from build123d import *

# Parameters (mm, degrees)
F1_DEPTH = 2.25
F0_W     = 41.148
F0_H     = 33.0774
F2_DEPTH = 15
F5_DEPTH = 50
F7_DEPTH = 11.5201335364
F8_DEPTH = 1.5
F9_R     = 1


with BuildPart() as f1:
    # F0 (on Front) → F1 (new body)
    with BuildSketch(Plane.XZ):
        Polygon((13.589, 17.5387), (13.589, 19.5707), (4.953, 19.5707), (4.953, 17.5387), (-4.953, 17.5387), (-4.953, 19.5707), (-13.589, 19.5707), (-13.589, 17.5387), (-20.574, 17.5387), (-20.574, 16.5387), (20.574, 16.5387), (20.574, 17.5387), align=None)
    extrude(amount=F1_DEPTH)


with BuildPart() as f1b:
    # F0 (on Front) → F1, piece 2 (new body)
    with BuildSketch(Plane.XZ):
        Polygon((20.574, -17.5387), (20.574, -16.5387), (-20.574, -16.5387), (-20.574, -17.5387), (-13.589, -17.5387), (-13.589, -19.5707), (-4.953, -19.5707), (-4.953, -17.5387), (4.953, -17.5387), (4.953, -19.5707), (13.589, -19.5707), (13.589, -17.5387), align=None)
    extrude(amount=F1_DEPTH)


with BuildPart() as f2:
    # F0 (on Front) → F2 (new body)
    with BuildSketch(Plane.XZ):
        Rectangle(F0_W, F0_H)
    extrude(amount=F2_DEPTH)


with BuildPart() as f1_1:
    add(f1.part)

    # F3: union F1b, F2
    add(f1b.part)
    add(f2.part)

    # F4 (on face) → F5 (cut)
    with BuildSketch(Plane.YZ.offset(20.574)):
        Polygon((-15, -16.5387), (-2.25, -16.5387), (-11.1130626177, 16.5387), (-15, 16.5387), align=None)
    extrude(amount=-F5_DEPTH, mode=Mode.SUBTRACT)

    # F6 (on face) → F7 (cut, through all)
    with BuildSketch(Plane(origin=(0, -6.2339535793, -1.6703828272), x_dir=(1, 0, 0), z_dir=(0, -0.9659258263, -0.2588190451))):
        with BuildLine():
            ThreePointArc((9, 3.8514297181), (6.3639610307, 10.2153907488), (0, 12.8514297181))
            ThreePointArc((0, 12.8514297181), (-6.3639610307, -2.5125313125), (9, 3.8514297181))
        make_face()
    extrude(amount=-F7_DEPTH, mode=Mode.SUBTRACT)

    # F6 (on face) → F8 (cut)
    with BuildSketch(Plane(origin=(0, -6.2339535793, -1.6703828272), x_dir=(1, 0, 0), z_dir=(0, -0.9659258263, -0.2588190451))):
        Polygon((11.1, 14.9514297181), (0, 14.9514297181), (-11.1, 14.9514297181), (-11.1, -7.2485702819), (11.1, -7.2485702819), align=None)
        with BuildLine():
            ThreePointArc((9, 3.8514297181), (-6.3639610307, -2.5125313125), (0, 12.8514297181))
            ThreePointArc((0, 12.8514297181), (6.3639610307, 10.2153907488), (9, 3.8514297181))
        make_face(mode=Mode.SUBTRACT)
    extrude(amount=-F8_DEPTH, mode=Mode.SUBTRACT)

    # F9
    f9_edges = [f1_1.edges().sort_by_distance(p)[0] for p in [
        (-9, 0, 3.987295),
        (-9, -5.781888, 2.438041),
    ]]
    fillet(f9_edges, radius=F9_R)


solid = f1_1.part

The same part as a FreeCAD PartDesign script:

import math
import FreeCAD as App
import Part
import Sketcher
from FreeCAD import Vector
Q = App.Units.Quantity


def edges_at(feature, points):
    """Names of the edges that pass closest to the given points."""
    edges = feature.Shape.Edges
    near = lambda p: min(range(len(edges)), key=lambda i: edges[i].distToShape(Part.Vertex(*p))[0])
    return sorted({f"Edge{near(p) + 1}" for p in points})

doc = App.newDocument("Part")
params = doc.addObject("Spreadsheet::Sheet", "Params")
for row, (alias, value) in enumerate([
    ("sketch1_height", "1 mm"),
    ("pad1_length", "2.25 mm"),
    ("sketch2_height", "1 mm"),
    ("pad2_length", "2.25 mm"),
    ("pad3_length", "15 mm"),
    ("sketch4_width", "12.75 mm"),
    ("pocket1_length", "50 mm"),
    ("sketch5_radius", "9 mm"),
    ("sketch6_radius", "9 mm"),
    ("sketch6_width", "22.2 mm"),
    ("pocket3_length", "1.5 mm"),
    ("fillet_radius", "1 mm"),
], start=1):
    params.set(f"A{row}", alias)
    params.set(f"B{row}", "=" + value)
    params.setAlias(f"B{row}", alias)

body = doc.addObject("PartDesign::Body", "Body")

# Sketch on XZ plane
sketch1 = doc.addObject("Sketcher::SketchObject", "Sketch")
body.addObject(sketch1)
sketch1.AttachmentSupport = (doc.XZ_Plane, [""])
sketch1.MapMode = "FlatFace"
sketch1.addGeometry([
    Part.LineSegment(Vector(13.589, 17.5387, 0), Vector(13.589, 19.5707, 0)),  # 0
    Part.LineSegment(Vector(13.589, 19.5707, 0), Vector(4.953, 19.5707, 0)),  # 1
    Part.LineSegment(Vector(4.953, 19.5707, 0), Vector(4.953, 17.5387, 0)),  # 2
    Part.LineSegment(Vector(4.953, 17.5387, 0), Vector(-4.953, 17.5387, 0)),  # 3
    Part.LineSegment(Vector(-4.953, 17.5387, 0), Vector(-4.953, 19.5707, 0)),  # 4
    Part.LineSegment(Vector(-4.953, 19.5707, 0), Vector(-13.589, 19.5707, 0)),  # 5
    Part.LineSegment(Vector(-13.589, 19.5707, 0), Vector(-13.589, 17.5387, 0)),  # 6
    Part.LineSegment(Vector(-13.589, 17.5387, 0), Vector(-20.574, 17.5387, 0)),  # 7
    Part.LineSegment(Vector(-20.574, 17.5387, 0), Vector(-20.574, 16.5387, 0)),  # 8
    Part.LineSegment(Vector(-20.574, 16.5387, 0), Vector(20.574, 16.5387, 0)),  # 9
    Part.LineSegment(Vector(20.574, 16.5387, 0), Vector(20.574, 17.5387, 0)),  # 10
    Part.LineSegment(Vector(20.574, 17.5387, 0), Vector(13.589, 17.5387, 0)),  # 11
], False)
sketch1.addConstraint([
    Sketcher.Constraint("Coincident", 0, 2, 1, 1),
    Sketcher.Constraint("Coincident", 1, 2, 2, 1),
    Sketcher.Constraint("Coincident", 2, 2, 3, 1),
    Sketcher.Constraint("Coincident", 3, 2, 4, 1),
    Sketcher.Constraint("Coincident", 4, 2, 5, 1),
    Sketcher.Constraint("Coincident", 5, 2, 6, 1),
    Sketcher.Constraint("Coincident", 6, 2, 7, 1),
    Sketcher.Constraint("Coincident", 7, 2, 8, 1),
    Sketcher.Constraint("Coincident", 8, 2, 9, 1),
    Sketcher.Constraint("Coincident", 9, 2, 10, 1),
    Sketcher.Constraint("Coincident", 10, 2, 11, 1),
    Sketcher.Constraint("Coincident", 11, 2, 0, 1),
    Sketcher.Constraint("Vertical", 0),
    Sketcher.Constraint("Horizontal", 1),
    Sketcher.Constraint("Vertical", 2),
    Sketcher.Constraint("Horizontal", 3),
    Sketcher.Constraint("Vertical", 4),
    Sketcher.Constraint("Horizontal", 5),
    Sketcher.Constraint("Vertical", 6),
    Sketcher.Constraint("Horizontal", 7),
    Sketcher.Constraint("Vertical", 8),
    Sketcher.Constraint("Horizontal", 9),
    Sketcher.Constraint("Vertical", 10),
    Sketcher.Constraint("Horizontal", 11),
    Sketcher.Constraint("Symmetric", 1, 2, 4, 2, -2),
    Sketcher.Constraint("Symmetric", 7, 2, 10, 2, -2),
    Sketcher.Constraint("Horizontal", 3, 2, 6, 2),
    Sketcher.Constraint("Equal", 1, 5),
    Sketcher.Constraint("DistanceY", 8, 2, 8, 1, Q("1 mm")),
    Sketcher.Constraint("DistanceX", 1, 2, 1, 1, Q("8.636 mm")),
    Sketcher.Constraint("DistanceX", 3, 2, 3, 1, Q("9.906 mm")),
    Sketcher.Constraint("DistanceX", 7, 2, 7, 1, Q("6.985 mm")),
    Sketcher.Constraint("DistanceY", 0, 1, 0, 2, Q("2.032 mm")),
    Sketcher.Constraint("DistanceY", -1, 1, 0, 2, Q("19.5707 mm")),
])
sketch1.setExpression("Constraints[28]", "Params.sketch1_height")
pad1 = doc.addObject("PartDesign::Pad", "Pad")
body.addObject(pad1)
pad1.Profile = sketch1
pad1.setExpression("Length", "Params.pad1_length")
body2 = doc.addObject("PartDesign::Body", "Body001")

# Sketch on XZ plane
sketch2 = doc.addObject("Sketcher::SketchObject", "Sketch001")
body2.addObject(sketch2)
sketch2.AttachmentSupport = (doc.getObject("XZ_Plane001"), [""])
sketch2.MapMode = "FlatFace"
sketch2.addGeometry([
    Part.LineSegment(Vector(20.574, -17.5387, 0), Vector(20.574, -16.5387, 0)),  # 0
    Part.LineSegment(Vector(20.574, -16.5387, 0), Vector(-20.574, -16.5387, 0)),  # 1
    Part.LineSegment(Vector(-20.574, -16.5387, 0), Vector(-20.574, -17.5387, 0)),  # 2
    Part.LineSegment(Vector(-20.574, -17.5387, 0), Vector(-13.589, -17.5387, 0)),  # 3
    Part.LineSegment(Vector(-13.589, -17.5387, 0), Vector(-13.589, -19.5707, 0)),  # 4
    Part.LineSegment(Vector(-13.589, -19.5707, 0), Vector(-4.953, -19.5707, 0)),  # 5
    Part.LineSegment(Vector(-4.953, -19.5707, 0), Vector(-4.953, -17.5387, 0)),  # 6
    Part.LineSegment(Vector(-4.953, -17.5387, 0), Vector(4.953, -17.5387, 0)),  # 7
    Part.LineSegment(Vector(4.953, -17.5387, 0), Vector(4.953, -19.5707, 0)),  # 8
    Part.LineSegment(Vector(4.953, -19.5707, 0), Vector(13.589, -19.5707, 0)),  # 9
    Part.LineSegment(Vector(13.589, -19.5707, 0), Vector(13.589, -17.5387, 0)),  # 10
    Part.LineSegment(Vector(13.589, -17.5387, 0), Vector(20.574, -17.5387, 0)),  # 11
], False)
sketch2.addConstraint([
    Sketcher.Constraint("Coincident", 0, 2, 1, 1),
    Sketcher.Constraint("Coincident", 1, 2, 2, 1),
    Sketcher.Constraint("Coincident", 2, 2, 3, 1),
    Sketcher.Constraint("Coincident", 3, 2, 4, 1),
    Sketcher.Constraint("Coincident", 4, 2, 5, 1),
    Sketcher.Constraint("Coincident", 5, 2, 6, 1),
    Sketcher.Constraint("Coincident", 6, 2, 7, 1),
    Sketcher.Constraint("Coincident", 7, 2, 8, 1),
    Sketcher.Constraint("Coincident", 8, 2, 9, 1),
    Sketcher.Constraint("Coincident", 9, 2, 10, 1),
    Sketcher.Constraint("Coincident", 10, 2, 11, 1),
    Sketcher.Constraint("Coincident", 11, 2, 0, 1),
    Sketcher.Constraint("Vertical", 0),
    Sketcher.Constraint("Horizontal", 1),
    Sketcher.Constraint("Vertical", 2),
    Sketcher.Constraint("Horizontal", 3),
    Sketcher.Constraint("Vertical", 4),
    Sketcher.Constraint("Horizontal", 5),
    Sketcher.Constraint("Vertical", 6),
    Sketcher.Constraint("Horizontal", 7),
    Sketcher.Constraint("Vertical", 8),
    Sketcher.Constraint("Horizontal", 9),
    Sketcher.Constraint("Vertical", 10),
    Sketcher.Constraint("Horizontal", 11),
    Sketcher.Constraint("Symmetric", 5, 2, 8, 2, -2),
    Sketcher.Constraint("Symmetric", 3, 2, 10, 2, -2),
    Sketcher.Constraint("Horizontal", 3, 2, 6, 2),
    Sketcher.Constraint("Equal", 3, 11),
    Sketcher.Constraint("DistanceY", 0, 1, 0, 2, Q("1 mm")),
    Sketcher.Constraint("DistanceX", 1, 2, 1, 1, Q("41.148 mm")),
    Sketcher.Constraint("DistanceX", 3, 1, 3, 2, Q("6.985 mm")),
    Sketcher.Constraint("DistanceX", 5, 1, 5, 2, Q("8.636 mm")),
    Sketcher.Constraint("DistanceY", 4, 2, 4, 1, Q("2.032 mm")),
    Sketcher.Constraint("DistanceY", 0, 2, -1, 1, Q("16.5387 mm")),
])
sketch2.setExpression("Constraints[28]", "Params.sketch2_height")
pad2 = doc.addObject("PartDesign::Pad", "Pad001")
body2.addObject(pad2)
pad2.Profile = sketch2
pad2.setExpression("Length", "Params.pad2_length")
body3 = doc.addObject("PartDesign::Body", "Body002")

# Sketch on XZ plane
sketch3 = doc.addObject("Sketcher::SketchObject", "Sketch002")
body3.addObject(sketch3)
sketch3.AttachmentSupport = (doc.getObject("XZ_Plane002"), [""])
sketch3.MapMode = "FlatFace"
sketch3.addGeometry([
    Part.LineSegment(Vector(-20.574, 16.5387, 0), Vector(-20.574, -16.5387, 0)),
    Part.LineSegment(Vector(-20.574, -16.5387, 0), Vector(20.574, -16.5387, 0)),
    Part.LineSegment(Vector(20.574, -16.5387, 0), Vector(20.574, 16.5387, 0)),
    Part.LineSegment(Vector(20.574, 16.5387, 0), Vector(-20.574, 16.5387, 0)),
], False)
sketch3.addConstraint([
    Sketcher.Constraint("Coincident", 0, 2, 1, 1),
    Sketcher.Constraint("Coincident", 1, 2, 2, 1),
    Sketcher.Constraint("Coincident", 2, 2, 3, 1),
    Sketcher.Constraint("Coincident", 3, 2, 0, 1),
    Sketcher.Constraint("Vertical", 0),
    Sketcher.Constraint("Horizontal", 1),
    Sketcher.Constraint("Vertical", 2),
    Sketcher.Constraint("Horizontal", 3),
    Sketcher.Constraint("Symmetric", 0, 2, 2, 2, -1, 1),
    Sketcher.Constraint("DistanceX", 1, 1, 1, 2, Q("41.148 mm")),
    Sketcher.Constraint("DistanceY", 0, 2, 0, 1, Q("33.0774 mm")),
])
pad3 = doc.addObject("PartDesign::Pad", "Pad002")
body3.addObject(pad3)
pad3.Profile = sketch3
pad3.setExpression("Length", "Params.pad3_length")
body.AllowCompound = True
doc.recompute()

boolean = doc.addObject("PartDesign::Boolean", "Boolean")
body.addObject(boolean)
boolean.Type = "Fuse"
boolean.addObjects([body2])
doc.recompute()

boolean2 = doc.addObject("PartDesign::Boolean", "Boolean001")
body.addObject(boolean2)
boolean2.Type = "Fuse"
boolean2.addObjects([body3])

# Sketch on YZ plane
sketch4 = doc.addObject("Sketcher::SketchObject", "Sketch003")
body.addObject(sketch4)
sketch4.AttachmentSupport = (doc.YZ_Plane, [""])
sketch4.MapMode = "FlatFace"
sketch4.AttachmentOffset = App.Placement(Vector(0, 0, 20.574), App.Rotation())
sketch4.addGeometry([
    Part.LineSegment(Vector(-15, -16.5387, 0), Vector(-2.25, -16.5387, 0)),
    Part.LineSegment(Vector(-2.25, -16.5387, 0), Vector(-11.113063, 16.5387, 0)),
    Part.LineSegment(Vector(-11.113063, 16.5387, 0), Vector(-15, 16.5387, 0)),
    Part.LineSegment(Vector(-15, 16.5387, 0), Vector(-15, -16.5387, 0)),
], False)
sketch4.addConstraint([
    Sketcher.Constraint("Coincident", 0, 2, 1, 1),
    Sketcher.Constraint("Coincident", 1, 2, 2, 1),
    Sketcher.Constraint("Coincident", 2, 2, 3, 1),
    Sketcher.Constraint("Coincident", 3, 2, 0, 1),
    Sketcher.Constraint("Horizontal", 0),
    Sketcher.Constraint("Horizontal", 2),
    Sketcher.Constraint("Vertical", 3),
    Sketcher.Constraint("Angle", 1, Q("105 deg")),
    Sketcher.Constraint("DistanceX", 2, 2, -1, 1, Q("15 mm")),
    Sketcher.Constraint("DistanceX", 0, 1, 0, 2, Q("12.75 mm")),
    Sketcher.Constraint("DistanceY", 3, 2, 3, 1, Q("33.0774 mm")),
    Sketcher.Constraint("DistanceY", 0, 2, -1, 1, Q("16.5387 mm")),
])
sketch4.setExpression("Constraints[9]", "Params.sketch4_width")
pocket1 = doc.addObject("PartDesign::Pocket", "Pocket")
body.addObject(pocket1)
pocket1.Profile = sketch4
pocket1.setExpression("Length", "Params.pocket1_length")

# Sketch on an angled plane
sketch5 = doc.addObject("Sketcher::SketchObject", "Sketch004")
body.addObject(sketch5)
sketch5.Placement = App.Placement(Vector(0, -6.233954, -1.670383), App.Rotation(Vector(1, 0, 0), Vector(0, -0.258819045, 0.965925826), Vector(0, -0.965925826, -0.258819045), "ZXY"))
sketch5.addGeometry([
    Part.ArcOfCircle(Part.Circle(Vector(0, 3.85143, 0), Vector(0, 0, 1), 9), math.radians(0), math.radians(90)),
    Part.ArcOfCircle(Part.Circle(Vector(0, 3.85143, 0), Vector(0, 0, 1), 9), math.radians(90), math.radians(360)),
], False)
sketch5.addConstraint([
    Sketcher.Constraint("Tangent", 0, 1, 1, 2),
    Sketcher.Constraint("Coincident", 1, 1, 0, 2),
    Sketcher.Constraint("PointOnObject", 0, 3, -2),
    Sketcher.Constraint("PointOnObject", 1, 1, -2),
    Sketcher.Constraint("Horizontal", 1, 3, 0, 1),
    Sketcher.Constraint("Radius", 0, Q("9 mm")),
    Sketcher.Constraint("DistanceY", -1, 1, 0, 3, Q("3.85143 mm")),
])
sketch5.setExpression("Constraints[5]", "Params.sketch5_radius")
pocket2 = doc.addObject("PartDesign::Pocket", "Pocket001")
body.addObject(pocket2)
pocket2.Profile = sketch5
pocket2.Type = "ThroughAll"

# Sketch on an angled plane
sketch6 = doc.addObject("Sketcher::SketchObject", "Sketch005")
body.addObject(sketch6)
sketch6.Placement = App.Placement(Vector(0, -6.233954, -1.670383), App.Rotation(Vector(1, 0, 0), Vector(0, -0.258819045, 0.965925826), Vector(0, -0.965925826, -0.258819045), "ZXY"))
sketch6.addGeometry([
    Part.LineSegment(Vector(11.1, 14.95143, 0), Vector(-11.1, 14.95143, 0)),  # 0
    Part.LineSegment(Vector(-11.1, 14.95143, 0), Vector(-11.1, -7.24857, 0)),  # 1
    Part.LineSegment(Vector(-11.1, -7.24857, 0), Vector(11.1, -7.24857, 0)),  # 2
    Part.LineSegment(Vector(11.1, -7.24857, 0), Vector(11.1, 14.95143, 0)),  # 3
    Part.ArcOfCircle(Part.Circle(Vector(0, 3.85143, 0), Vector(0, 0, 1), 9), math.radians(0), math.radians(90)),  # 4
    Part.ArcOfCircle(Part.Circle(Vector(0, 3.85143, 0), Vector(0, 0, 1), 9), math.radians(90), math.radians(360)),  # 5
], False)
sketch6.addConstraint([
    Sketcher.Constraint("Coincident", 0, 2, 1, 1),
    Sketcher.Constraint("Coincident", 1, 2, 2, 1),
    Sketcher.Constraint("Coincident", 2, 2, 3, 1),
    Sketcher.Constraint("Coincident", 3, 2, 0, 1),
    Sketcher.Constraint("Tangent", 4, 1, 5, 2),
    Sketcher.Constraint("Coincident", 5, 1, 4, 2),
    Sketcher.Constraint("Horizontal", 0),
    Sketcher.Constraint("Vertical", 1),
    Sketcher.Constraint("Horizontal", 2),
    Sketcher.Constraint("Vertical", 3),
    Sketcher.Constraint("PointOnObject", 4, 3, -2),
    Sketcher.Constraint("PointOnObject", 5, 1, -2),
    Sketcher.Constraint("Horizontal", 5, 3, 4, 1),
    Sketcher.Constraint("Equal", 2, 1),
    Sketcher.Constraint("Radius", 4, Q("9 mm")),
    Sketcher.Constraint("DistanceX", 0, 2, 0, 1, Q("22.2 mm")),
    Sketcher.Constraint("DistanceX", 0, 2, -1, 1, Q("11.1 mm")),
    Sketcher.Constraint("DistanceY", 4, 3, 0, 2, Q("11.1 mm")),
    Sketcher.Constraint("DistanceY", -1, 1, 4, 3, Q("3.85143 mm")),
])
sketch6.setExpression("Constraints[14]", "Params.sketch6_radius")
sketch6.setExpression("Constraints[15]", "Params.sketch6_width")
pocket3 = doc.addObject("PartDesign::Pocket", "Pocket002")
body.addObject(pocket3)
pocket3.Profile = sketch6
pocket3.setExpression("Length", "Params.pocket3_length")
doc.recompute()

fillet = doc.addObject("PartDesign::Fillet", "Fillet")
body.addObject(fillet)
fillet.Base = (pocket3, edges_at(pocket3, [(-6.419, 0, -2.544), (-6.364, -4.135, -3.709)]))
fillet.setExpression("Radius", "Params.fillet_radius")

doc.recompute()
